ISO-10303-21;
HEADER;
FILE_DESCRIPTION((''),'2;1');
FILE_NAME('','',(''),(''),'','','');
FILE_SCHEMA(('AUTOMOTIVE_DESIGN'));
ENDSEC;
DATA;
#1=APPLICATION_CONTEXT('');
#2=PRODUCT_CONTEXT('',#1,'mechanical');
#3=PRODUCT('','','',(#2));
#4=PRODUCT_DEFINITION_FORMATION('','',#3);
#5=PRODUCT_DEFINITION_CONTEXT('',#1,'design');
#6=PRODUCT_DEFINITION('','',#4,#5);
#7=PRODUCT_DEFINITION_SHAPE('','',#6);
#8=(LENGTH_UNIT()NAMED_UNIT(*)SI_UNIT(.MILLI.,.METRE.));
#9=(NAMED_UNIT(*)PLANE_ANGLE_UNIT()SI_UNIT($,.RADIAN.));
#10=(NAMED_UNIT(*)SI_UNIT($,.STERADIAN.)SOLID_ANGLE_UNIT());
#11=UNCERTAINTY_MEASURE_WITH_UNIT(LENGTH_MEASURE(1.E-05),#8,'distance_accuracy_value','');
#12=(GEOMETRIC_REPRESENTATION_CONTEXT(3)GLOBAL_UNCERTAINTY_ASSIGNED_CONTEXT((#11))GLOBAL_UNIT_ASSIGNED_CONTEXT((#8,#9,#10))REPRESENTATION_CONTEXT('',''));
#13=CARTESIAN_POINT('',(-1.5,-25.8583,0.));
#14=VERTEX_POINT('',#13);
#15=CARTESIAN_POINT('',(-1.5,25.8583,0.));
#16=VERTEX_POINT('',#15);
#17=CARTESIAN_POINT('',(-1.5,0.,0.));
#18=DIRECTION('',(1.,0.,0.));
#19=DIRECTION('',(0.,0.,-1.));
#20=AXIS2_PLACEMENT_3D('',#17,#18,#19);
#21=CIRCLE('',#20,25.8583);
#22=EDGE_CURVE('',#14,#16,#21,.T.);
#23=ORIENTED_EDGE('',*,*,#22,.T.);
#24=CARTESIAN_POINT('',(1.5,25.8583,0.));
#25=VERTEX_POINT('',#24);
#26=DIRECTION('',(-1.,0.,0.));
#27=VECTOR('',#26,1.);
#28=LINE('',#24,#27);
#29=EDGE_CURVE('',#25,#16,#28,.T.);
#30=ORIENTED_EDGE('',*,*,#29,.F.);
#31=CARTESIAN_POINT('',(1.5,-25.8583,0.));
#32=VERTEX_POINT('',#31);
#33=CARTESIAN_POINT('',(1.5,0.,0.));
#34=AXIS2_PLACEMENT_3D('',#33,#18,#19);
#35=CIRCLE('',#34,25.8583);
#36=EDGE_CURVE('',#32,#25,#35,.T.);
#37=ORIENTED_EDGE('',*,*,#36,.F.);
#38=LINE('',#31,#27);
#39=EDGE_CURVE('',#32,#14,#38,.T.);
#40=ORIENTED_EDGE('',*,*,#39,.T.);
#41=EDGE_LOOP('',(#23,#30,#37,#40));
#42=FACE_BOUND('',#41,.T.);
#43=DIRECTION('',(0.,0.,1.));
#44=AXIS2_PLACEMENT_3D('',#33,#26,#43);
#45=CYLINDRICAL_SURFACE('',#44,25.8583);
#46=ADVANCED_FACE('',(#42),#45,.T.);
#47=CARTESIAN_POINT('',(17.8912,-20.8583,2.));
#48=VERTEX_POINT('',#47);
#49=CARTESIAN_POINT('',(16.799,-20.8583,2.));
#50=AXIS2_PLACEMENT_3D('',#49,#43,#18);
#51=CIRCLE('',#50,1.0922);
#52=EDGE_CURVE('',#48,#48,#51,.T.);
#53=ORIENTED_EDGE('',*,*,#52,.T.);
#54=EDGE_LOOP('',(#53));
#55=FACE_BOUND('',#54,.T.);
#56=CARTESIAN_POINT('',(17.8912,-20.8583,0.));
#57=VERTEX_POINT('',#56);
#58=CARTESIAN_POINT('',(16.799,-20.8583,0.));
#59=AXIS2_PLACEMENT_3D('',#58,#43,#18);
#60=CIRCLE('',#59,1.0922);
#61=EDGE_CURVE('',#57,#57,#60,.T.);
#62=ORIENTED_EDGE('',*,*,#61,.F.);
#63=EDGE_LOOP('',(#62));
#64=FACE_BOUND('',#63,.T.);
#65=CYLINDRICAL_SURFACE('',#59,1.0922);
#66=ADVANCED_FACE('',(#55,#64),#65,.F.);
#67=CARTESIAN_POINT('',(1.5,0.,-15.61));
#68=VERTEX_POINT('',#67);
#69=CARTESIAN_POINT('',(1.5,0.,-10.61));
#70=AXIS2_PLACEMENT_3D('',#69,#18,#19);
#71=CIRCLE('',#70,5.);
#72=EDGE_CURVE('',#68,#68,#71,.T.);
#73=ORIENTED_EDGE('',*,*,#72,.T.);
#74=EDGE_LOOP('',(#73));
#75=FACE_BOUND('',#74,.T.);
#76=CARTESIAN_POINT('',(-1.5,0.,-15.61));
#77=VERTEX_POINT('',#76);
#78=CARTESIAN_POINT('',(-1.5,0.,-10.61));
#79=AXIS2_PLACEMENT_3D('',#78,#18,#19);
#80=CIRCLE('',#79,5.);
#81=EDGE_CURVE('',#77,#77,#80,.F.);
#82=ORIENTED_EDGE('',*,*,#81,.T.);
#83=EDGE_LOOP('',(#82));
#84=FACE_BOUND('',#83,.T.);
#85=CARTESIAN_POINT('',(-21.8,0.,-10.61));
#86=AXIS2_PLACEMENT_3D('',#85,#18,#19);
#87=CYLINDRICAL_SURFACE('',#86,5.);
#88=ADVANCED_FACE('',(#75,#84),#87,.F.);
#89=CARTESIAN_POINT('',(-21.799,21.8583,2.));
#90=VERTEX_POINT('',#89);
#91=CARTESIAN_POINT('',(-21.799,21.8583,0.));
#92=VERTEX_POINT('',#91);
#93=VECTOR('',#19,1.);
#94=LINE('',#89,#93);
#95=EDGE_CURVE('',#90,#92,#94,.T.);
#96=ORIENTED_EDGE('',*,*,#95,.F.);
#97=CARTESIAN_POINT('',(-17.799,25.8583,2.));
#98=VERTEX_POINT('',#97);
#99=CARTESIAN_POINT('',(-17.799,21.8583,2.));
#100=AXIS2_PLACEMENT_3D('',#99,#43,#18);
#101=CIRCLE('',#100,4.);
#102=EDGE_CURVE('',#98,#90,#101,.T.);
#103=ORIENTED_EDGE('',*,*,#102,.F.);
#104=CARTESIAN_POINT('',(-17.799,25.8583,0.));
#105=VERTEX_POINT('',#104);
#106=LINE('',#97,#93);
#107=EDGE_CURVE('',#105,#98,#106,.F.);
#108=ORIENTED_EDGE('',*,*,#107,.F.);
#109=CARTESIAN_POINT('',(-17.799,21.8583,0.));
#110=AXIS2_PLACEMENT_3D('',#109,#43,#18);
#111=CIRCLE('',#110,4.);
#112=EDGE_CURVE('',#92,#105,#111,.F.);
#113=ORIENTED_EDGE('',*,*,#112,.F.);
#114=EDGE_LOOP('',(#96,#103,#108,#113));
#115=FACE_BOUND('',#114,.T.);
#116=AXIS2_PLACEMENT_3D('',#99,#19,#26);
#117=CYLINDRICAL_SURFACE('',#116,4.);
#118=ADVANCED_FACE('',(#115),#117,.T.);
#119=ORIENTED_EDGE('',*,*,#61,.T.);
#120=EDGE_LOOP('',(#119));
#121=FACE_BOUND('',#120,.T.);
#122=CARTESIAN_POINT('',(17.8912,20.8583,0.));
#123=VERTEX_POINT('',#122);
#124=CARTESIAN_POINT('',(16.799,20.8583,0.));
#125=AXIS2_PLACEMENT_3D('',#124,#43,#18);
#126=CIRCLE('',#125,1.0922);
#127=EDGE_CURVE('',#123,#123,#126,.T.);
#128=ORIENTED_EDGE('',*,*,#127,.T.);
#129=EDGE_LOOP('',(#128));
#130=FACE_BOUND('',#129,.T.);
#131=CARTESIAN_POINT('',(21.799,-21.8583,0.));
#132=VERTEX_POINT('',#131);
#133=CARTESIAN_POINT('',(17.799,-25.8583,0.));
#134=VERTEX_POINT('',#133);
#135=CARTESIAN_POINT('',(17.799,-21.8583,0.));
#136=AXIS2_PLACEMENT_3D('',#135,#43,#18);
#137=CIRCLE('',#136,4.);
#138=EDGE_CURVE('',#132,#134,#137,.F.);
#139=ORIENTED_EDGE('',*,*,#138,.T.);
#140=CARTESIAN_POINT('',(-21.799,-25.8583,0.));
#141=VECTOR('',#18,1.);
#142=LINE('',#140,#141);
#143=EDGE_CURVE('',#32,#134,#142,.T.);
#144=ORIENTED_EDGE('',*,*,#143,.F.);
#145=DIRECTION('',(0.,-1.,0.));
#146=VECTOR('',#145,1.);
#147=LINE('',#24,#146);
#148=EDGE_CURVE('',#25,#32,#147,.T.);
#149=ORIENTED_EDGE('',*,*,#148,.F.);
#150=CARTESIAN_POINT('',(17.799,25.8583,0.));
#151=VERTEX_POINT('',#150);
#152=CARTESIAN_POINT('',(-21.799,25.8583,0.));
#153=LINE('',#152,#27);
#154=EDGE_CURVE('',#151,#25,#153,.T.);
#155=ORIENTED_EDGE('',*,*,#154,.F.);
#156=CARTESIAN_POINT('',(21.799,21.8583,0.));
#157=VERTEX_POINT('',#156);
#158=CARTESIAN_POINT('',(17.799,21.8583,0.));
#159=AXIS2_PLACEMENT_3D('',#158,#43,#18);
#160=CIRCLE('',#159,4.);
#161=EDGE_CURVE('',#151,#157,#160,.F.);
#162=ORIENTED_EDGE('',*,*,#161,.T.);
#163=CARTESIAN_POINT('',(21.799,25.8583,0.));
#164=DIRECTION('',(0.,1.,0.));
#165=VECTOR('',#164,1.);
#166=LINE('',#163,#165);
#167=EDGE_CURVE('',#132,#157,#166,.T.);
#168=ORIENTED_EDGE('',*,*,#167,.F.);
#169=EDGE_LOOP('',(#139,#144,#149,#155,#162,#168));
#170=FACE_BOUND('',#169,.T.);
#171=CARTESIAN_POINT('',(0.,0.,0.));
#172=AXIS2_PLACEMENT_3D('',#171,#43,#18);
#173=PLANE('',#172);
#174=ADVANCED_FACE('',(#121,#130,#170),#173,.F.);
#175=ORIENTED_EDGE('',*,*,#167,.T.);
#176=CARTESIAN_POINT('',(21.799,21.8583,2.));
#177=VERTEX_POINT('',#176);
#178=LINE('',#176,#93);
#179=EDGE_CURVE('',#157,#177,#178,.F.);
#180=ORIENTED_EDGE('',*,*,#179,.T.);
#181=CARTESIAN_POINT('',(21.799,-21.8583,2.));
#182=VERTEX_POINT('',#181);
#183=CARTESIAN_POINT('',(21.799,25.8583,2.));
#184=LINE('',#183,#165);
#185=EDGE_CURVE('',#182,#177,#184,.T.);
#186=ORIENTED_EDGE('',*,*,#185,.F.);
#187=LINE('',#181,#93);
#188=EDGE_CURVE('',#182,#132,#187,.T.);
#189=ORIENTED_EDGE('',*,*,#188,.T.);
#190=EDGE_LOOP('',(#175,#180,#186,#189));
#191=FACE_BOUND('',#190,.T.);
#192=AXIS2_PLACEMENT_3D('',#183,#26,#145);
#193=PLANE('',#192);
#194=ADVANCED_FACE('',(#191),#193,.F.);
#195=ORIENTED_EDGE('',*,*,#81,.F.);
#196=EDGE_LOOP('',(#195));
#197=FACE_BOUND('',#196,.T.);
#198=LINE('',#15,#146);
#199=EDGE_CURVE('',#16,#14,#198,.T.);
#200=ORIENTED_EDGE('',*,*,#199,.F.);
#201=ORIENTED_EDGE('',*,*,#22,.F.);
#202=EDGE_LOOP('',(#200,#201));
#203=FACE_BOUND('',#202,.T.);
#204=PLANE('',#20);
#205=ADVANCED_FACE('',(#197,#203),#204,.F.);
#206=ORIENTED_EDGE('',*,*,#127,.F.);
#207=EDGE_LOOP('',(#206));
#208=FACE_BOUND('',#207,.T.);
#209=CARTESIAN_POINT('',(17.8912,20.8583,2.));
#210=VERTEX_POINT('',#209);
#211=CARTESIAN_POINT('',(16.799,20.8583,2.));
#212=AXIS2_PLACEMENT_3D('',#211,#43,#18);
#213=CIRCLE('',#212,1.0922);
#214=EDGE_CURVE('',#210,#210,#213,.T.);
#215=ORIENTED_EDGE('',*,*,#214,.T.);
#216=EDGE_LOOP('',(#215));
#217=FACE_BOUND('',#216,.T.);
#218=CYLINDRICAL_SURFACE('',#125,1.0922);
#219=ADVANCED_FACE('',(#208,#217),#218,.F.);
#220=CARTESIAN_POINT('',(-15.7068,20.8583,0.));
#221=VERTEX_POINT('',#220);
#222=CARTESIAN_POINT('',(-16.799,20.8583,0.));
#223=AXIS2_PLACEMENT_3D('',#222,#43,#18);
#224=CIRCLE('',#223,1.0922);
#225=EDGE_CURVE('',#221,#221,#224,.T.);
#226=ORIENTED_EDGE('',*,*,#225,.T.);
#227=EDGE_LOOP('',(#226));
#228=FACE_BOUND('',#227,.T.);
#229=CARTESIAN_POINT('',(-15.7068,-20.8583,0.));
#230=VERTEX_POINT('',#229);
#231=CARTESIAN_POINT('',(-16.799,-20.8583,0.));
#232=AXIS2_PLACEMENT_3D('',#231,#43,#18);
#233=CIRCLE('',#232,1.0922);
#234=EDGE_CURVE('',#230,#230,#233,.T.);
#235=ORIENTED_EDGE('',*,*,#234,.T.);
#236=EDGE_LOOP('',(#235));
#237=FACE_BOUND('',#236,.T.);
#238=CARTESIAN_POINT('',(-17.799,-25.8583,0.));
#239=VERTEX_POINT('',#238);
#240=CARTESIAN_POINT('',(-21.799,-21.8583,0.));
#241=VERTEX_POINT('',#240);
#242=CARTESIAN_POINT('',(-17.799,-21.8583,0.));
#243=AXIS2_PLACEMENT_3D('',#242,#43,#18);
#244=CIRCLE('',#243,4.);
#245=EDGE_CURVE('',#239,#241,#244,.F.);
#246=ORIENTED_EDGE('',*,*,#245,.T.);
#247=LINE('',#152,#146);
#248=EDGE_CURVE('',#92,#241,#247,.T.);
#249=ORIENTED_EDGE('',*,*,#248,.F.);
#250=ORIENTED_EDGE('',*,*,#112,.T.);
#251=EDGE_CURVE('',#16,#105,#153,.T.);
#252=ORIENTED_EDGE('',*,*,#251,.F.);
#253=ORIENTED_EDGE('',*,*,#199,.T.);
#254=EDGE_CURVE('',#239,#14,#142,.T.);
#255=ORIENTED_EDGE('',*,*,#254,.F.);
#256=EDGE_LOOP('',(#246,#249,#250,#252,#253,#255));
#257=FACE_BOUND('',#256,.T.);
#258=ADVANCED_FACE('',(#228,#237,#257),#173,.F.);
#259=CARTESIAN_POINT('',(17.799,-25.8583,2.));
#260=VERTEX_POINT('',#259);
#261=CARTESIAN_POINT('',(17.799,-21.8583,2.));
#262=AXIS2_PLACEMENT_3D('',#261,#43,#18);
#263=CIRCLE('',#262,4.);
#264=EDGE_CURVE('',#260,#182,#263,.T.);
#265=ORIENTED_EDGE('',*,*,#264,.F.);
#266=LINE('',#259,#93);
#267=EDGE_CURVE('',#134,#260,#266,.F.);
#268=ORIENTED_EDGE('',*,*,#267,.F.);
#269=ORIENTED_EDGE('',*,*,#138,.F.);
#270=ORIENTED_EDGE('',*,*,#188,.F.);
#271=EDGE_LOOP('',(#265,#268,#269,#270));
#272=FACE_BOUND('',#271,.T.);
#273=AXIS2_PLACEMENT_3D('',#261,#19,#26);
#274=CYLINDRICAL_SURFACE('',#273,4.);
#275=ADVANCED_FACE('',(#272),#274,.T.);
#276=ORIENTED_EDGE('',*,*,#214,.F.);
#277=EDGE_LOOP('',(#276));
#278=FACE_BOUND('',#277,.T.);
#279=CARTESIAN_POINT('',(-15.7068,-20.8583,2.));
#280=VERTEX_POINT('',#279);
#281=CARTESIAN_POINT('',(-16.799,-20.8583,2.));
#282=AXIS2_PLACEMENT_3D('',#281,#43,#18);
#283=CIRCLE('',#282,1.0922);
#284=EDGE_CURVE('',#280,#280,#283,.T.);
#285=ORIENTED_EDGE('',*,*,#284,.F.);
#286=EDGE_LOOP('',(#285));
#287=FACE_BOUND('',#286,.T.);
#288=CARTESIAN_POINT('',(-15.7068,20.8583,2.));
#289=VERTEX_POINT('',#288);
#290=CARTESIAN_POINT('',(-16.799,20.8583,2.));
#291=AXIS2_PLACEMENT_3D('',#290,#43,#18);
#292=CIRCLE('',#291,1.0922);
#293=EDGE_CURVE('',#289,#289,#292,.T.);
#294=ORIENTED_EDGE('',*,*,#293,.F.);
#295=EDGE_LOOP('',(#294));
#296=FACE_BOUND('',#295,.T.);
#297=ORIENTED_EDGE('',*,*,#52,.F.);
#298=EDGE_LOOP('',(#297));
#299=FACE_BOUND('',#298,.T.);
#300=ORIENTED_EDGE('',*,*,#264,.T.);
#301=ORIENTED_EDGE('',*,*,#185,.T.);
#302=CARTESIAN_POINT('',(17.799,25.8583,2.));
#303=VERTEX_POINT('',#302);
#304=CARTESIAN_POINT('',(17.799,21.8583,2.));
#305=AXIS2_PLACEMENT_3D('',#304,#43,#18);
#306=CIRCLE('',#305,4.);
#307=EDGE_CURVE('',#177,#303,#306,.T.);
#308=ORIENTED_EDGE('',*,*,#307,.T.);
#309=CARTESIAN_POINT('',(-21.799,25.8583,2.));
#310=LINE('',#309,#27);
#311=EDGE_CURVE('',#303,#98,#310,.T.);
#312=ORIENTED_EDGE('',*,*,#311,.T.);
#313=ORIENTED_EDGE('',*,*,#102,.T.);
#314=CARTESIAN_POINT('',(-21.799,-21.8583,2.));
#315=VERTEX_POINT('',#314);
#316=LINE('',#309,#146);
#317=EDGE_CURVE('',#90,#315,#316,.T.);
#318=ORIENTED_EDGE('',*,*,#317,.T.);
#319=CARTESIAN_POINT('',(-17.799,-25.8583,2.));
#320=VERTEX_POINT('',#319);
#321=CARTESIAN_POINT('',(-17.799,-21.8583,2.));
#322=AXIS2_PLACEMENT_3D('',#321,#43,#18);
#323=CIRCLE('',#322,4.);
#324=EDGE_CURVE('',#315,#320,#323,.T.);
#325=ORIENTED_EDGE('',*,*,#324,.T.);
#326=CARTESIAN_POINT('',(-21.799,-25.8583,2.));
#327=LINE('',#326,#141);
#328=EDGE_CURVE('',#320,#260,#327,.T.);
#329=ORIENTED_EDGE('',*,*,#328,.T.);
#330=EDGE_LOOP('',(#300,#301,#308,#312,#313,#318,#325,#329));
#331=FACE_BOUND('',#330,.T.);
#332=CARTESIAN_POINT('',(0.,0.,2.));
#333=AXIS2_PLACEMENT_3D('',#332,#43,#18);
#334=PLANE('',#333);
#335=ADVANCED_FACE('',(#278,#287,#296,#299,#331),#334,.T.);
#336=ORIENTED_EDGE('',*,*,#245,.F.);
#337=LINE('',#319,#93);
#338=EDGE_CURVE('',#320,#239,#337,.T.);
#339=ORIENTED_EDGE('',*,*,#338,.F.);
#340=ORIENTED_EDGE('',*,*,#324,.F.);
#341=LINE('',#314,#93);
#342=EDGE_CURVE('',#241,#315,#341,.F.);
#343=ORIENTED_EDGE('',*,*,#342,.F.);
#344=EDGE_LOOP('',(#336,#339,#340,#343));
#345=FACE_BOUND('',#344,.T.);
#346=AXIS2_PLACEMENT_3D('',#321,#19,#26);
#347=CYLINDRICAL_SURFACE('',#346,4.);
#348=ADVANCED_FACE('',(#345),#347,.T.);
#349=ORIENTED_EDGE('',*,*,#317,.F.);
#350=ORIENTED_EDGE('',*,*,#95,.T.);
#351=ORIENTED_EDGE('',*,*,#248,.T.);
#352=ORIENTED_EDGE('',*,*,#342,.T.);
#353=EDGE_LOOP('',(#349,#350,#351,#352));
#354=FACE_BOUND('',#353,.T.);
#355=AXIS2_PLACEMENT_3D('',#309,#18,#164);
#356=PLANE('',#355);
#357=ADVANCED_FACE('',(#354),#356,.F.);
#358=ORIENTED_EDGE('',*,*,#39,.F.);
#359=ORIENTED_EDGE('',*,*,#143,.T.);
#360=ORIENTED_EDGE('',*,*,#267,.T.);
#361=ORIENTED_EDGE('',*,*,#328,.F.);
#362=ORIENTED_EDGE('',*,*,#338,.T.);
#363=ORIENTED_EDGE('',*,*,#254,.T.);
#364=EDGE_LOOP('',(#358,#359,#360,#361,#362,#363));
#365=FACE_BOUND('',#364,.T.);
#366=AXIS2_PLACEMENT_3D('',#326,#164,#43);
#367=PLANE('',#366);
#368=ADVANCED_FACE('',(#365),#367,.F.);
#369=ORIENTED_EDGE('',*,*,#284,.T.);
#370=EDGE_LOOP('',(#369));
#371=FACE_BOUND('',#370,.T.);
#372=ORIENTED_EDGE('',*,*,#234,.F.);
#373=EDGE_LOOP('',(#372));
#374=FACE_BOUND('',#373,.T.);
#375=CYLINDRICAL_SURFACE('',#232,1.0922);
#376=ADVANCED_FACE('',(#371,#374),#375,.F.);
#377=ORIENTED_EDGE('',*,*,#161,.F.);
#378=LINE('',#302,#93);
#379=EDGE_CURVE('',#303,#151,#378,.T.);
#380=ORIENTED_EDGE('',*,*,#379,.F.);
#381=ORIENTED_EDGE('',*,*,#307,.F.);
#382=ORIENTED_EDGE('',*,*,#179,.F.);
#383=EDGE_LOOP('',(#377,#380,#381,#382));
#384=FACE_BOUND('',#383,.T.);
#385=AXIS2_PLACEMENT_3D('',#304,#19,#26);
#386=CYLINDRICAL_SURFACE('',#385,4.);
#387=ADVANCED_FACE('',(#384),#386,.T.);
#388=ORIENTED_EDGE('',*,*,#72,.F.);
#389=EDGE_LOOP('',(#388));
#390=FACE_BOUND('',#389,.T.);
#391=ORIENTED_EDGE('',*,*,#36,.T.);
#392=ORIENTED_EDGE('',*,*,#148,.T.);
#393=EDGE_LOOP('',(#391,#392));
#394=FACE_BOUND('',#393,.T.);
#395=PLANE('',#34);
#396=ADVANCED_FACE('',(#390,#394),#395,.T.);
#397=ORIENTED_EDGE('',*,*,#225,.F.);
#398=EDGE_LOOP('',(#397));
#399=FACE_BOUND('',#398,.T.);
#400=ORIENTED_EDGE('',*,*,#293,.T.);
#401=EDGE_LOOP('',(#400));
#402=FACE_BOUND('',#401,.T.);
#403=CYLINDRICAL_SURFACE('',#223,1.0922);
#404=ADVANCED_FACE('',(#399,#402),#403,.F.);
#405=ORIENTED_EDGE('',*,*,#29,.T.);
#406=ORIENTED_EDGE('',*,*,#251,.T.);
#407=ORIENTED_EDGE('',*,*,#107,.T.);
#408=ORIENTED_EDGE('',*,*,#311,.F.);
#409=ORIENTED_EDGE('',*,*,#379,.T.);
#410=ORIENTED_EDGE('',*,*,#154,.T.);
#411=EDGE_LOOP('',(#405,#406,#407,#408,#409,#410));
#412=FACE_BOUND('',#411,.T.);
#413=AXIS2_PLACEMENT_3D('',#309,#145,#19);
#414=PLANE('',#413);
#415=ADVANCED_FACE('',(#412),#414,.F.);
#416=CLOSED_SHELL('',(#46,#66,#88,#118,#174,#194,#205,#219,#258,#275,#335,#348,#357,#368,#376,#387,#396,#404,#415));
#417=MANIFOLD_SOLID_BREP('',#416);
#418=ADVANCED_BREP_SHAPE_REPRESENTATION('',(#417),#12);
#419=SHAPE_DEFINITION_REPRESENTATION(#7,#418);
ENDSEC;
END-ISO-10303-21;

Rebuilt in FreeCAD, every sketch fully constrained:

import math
import FreeCAD as App
import Part
import Sketcher

V = App.Vector


def edges_at(feature, points):
    """Names of the edges that pass closest to the given points."""
    edges = feature.Shape.Edges
    near = lambda p: min(range(len(edges)), key=lambda i: edges[i].distToShape(Part.Vertex(*p))[0])
    return sorted({f"Edge{near(p) + 1}" for p in points})

doc = App.newDocument("Part")
body = doc.addObject("PartDesign::Body", "Body")

# Sketch on XY plane
sketch1 = body.newObject("Sketcher::SketchObject", "Sketch")
sketch1.AttachmentSupport = (doc.getObject("XY_Plane"), [""])
sketch1.MapMode = "FlatFace"
sketch1.addGeometry(Part.LineSegment(V(-22, 26, 0), V(-22, -26, 0)), False)
sketch1.addGeometry(Part.LineSegment(V(-22, -26, 0), V(22, -26, 0)), False)
sketch1.addGeometry(Part.LineSegment(V(22, -26, 0), V(22, 26, 0)), False)
sketch1.addGeometry(Part.LineSegment(V(22, 26, 0), V(-22, 26, 0)), False)
sketch1.addConstraint(Sketcher.Constraint("Coincident", 0, 2, 1, 1))
sketch1.addConstraint(Sketcher.Constraint("Coincident", 1, 2, 2, 1))
sketch1.addConstraint(Sketcher.Constraint("Coincident", 2, 2, 3, 1))
sketch1.addConstraint(Sketcher.Constraint("Coincident", 3, 2, 0, 1))
sketch1.addConstraint(Sketcher.Constraint("Vertical", 0))
sketch1.addConstraint(Sketcher.Constraint("Horizontal", 1))
sketch1.addConstraint(Sketcher.Constraint("Vertical", 2))
sketch1.addConstraint(Sketcher.Constraint("Horizontal", 3))
sketch1.addConstraint(Sketcher.Constraint("Symmetric", 0, 2, 2, 2, -1, 1))
sketch1.addConstraint(Sketcher.Constraint("DistanceX", 1, 1, 1, 2, 43.598))
sketch1.addConstraint(Sketcher.Constraint("DistanceY", 0, 2, 0, 1, 51.7166))
pad1 = body.newObject("PartDesign::Pad", "Pad")
pad1.Profile = sketch1
pad1.Length = 2
doc.recompute()

fillet = body.newObject("PartDesign::Fillet", "Fillet")
fillet.Base = (pad1, edges_at(pad1, [
    (21.799, -25.858, 1),
    (-21.799, -25.858, 1),
    (-21.799, 25.858, 1),
    (21.799, 25.858, 1),
]))
fillet.Radius = 4

# Sketch on XY plane
sketch2 = body.newObject("Sketcher::SketchObject", "Sketch001")
sketch2.AttachmentSupport = (doc.getObject("XY_Plane"), [""])
sketch2.MapMode = "FlatFace"
sketch2.AttachmentOffset = App.Placement(V(0, 0, 2), App.Rotation())
sketch2.addGeometry(Part.Circle(V(-16.8, 20.9, 0), V(0, 0, 1), 1.1), False)
sketch2.addGeometry(Part.Circle(V(16.8, 20.9, 0), V(0, 0, 1), 1.1), False)
sketch2.addGeometry(Part.Circle(V(-16.8, -20.9, 0), V(0, 0, 1), 1.1), False)
sketch2.addGeometry(Part.Circle(V(16.8, -20.9, 0), V(0, 0, 1), 1.1), False)
sketch2.addConstraint(Sketcher.Constraint("Equal", 0, 1))
sketch2.addConstraint(Sketcher.Constraint("Equal", 1, 2))
sketch2.addConstraint(Sketcher.Constraint("Equal", 2, 3))
sketch2.addConstraint(Sketcher.Constraint("Symmetric", 1, 3, 2, 3, -1, 1))
sketch2.addConstraint(Sketcher.Constraint("Symmetric", 0, 3, 3, 3, -1, 1))
sketch2.addConstraint(Sketcher.Constraint("Symmetric", 0, 3, 1, 3, -2))
sketch2.addConstraint(Sketcher.Constraint("Diameter", 0, 2.1844))
sketch2.addConstraint(Sketcher.Constraint("DistanceX", 0, 3, -1, 1, 16.799))
sketch2.addConstraint(Sketcher.Constraint("DistanceY", -1, 1, 0, 3, 20.8583))
pocket1 = body.newObject("PartDesign::Pocket", "Pocket")
pocket1.Profile = sketch2
pocket1.Length = 2

# Sketch on YZ plane
sketch3 = body.newObject("Sketcher::SketchObject", "Sketch002")
sketch3.AttachmentSupport = (doc.getObject("YZ_Plane"), [""])
sketch3.MapMode = "FlatFace"
sketch3.addGeometry(Part.LineSegment(V(26, 0, 0), V(-26, 0, 0)), False)
sketch3.addGeometry(Part.ArcOfCircle(Part.Circle(V(0, 0, 0), V(0, 0, 1), 26), math.radians(180), math.radians(360)), False)
sketch3.addConstraint(Sketcher.Constraint("Coincident", 0, 1, 1, 2))
sketch3.addConstraint(Sketcher.Constraint("Coincident", 1, 1, 0, 2))
sketch3.addConstraint(Sketcher.Constraint("Horizontal", 0))
sketch3.addConstraint(Sketcher.Constraint("Coincident", 1, 3, -1, 1))
sketch3.addConstraint(Sketcher.Constraint("PointOnObject", 0, 1, -1))
sketch3.addConstraint(Sketcher.Constraint("Radius", 1, 25.8583))
pad2 = body.newObject("PartDesign::Pad", "Pad001")
pad2.Profile = sketch3
pad2.Length = 3
pad2.Midplane = True

# Sketch on YZ plane
sketch4 = body.newObject("Sketcher::SketchObject", "Sketch003")
sketch4.AttachmentSupport = (doc.getObject("YZ_Plane"), [""])
sketch4.MapMode = "FlatFace"
sketch4.AttachmentOffset = App.Placement(V(0, 0, 1.5), App.Rotation())
sketch4.addGeometry(Part.Circle(V(0, -11, 0), V(0, 0, 1), 5), False)
sketch4.addConstraint(Sketcher.Constraint("PointOnObject", 0, 3, -2))
sketch4.addConstraint(Sketcher.Constraint("Diameter", 0, 10.0))
sketch4.addConstraint(Sketcher.Constraint("DistanceY", 0, 3, -1, 1, 10.61))
pocket2 = body.newObject("PartDesign::Pocket", "Pocket001")
pocket2.Profile = sketch4
pocket2.Type = "UpToFirst"

doc.recompute()
